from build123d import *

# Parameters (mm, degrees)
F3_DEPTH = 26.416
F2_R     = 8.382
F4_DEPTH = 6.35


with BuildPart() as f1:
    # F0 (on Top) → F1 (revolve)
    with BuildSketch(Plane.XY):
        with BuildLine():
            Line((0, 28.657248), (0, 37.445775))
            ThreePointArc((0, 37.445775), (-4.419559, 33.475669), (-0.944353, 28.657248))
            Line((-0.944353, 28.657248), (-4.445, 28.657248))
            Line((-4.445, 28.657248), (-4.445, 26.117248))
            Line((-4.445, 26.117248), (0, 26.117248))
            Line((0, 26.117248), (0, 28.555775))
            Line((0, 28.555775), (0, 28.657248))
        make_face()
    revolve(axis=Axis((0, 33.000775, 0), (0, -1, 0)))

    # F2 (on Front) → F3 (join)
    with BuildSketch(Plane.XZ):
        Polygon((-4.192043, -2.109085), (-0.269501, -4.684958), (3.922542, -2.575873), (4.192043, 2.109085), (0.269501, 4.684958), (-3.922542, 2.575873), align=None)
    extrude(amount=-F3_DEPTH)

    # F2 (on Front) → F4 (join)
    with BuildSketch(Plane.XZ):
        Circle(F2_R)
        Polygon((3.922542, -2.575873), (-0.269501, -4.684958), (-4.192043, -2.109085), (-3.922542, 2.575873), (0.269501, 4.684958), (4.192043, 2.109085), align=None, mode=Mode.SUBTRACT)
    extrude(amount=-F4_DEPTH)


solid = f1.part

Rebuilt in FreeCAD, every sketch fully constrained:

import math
import FreeCAD as App
import Part
import Sketcher
Q = App.Units.Quantity


def add_polygon(sketch, points):
    """Adds a closed chain of lines whose ends are joined by coincident constraints."""
    first, n = sketch.GeometryCount, len(points)
    for a, b in zip(points, points[1:] + points[:1]):
        sketch.addGeometry(Part.LineSegment(App.Vector(*a, 0), App.Vector(*b, 0)), False)
    for i in range(n):
        sketch.addConstraint(Sketcher.Constraint("Coincident", first + i, 2, first + (i + 1) % n, 1))

doc = App.newDocument("Part")
body = doc.addObject("PartDesign::Body", "Body")

sketch1 = doc.addObject("Sketcher::SketchObject", "Sketch")
body.addObject(sketch1)
sketch1.AttachmentSupport = (doc.XY_Plane, [""])
sketch1.MapMode = "FlatFace"
sketch1.addGeometry([
    Part.ArcOfCircle(Part.Circle(App.Vector(0, 33, 0), App.Vector(0, 0, 1), 4.4), math.radians(90), math.radians(258)),
    Part.LineSegment(App.Vector(-0.9, 28.7, 0), App.Vector(-4.4, 28.7, 0)),
    Part.LineSegment(App.Vector(-4.4, 28.7, 0), App.Vector(-4.4, 26.1, 0)),
    Part.LineSegment(App.Vector(-4.4, 26.1, 0), App.Vector(0, 26.1, 0)),
    Part.LineSegment(App.Vector(0, 26.1, 0), App.Vector(0, 37.4, 0)),
], False)
sketch1.addConstraint([
    Sketcher.Constraint("Coincident", 0, 2, 1, 1),
    Sketcher.Constraint("Coincident", 1, 2, 2, 1),
    Sketcher.Constraint("Coincident", 2, 2, 3, 1),
    Sketcher.Constraint("Coincident", 3, 2, 4, 1),
    Sketcher.Constraint("Coincident", 4, 2, 0, 1),
    Sketcher.Constraint("Horizontal", 1),
    Sketcher.Constraint("Vertical", 2),
    Sketcher.Constraint("Horizontal", 3),
    Sketcher.Constraint("Vertical", 4),
    Sketcher.Constraint("PointOnObject", 0, 3, -2),
    Sketcher.Constraint("PointOnObject", 3, 2, -2),
    Sketcher.Constraint("DistanceY", 2, 2, 2, 1, Q("0.1 in")),
    Sketcher.Constraint("Radius", 0, Q("0.175 in")),
    Sketcher.Constraint("DistanceX", 3, 1, 3, 2, Q("0.175 in")),
    Sketcher.Constraint("DistanceX", 1, 2, 1, 1, Q("3.500647 mm")),
    Sketcher.Constraint("DistanceY", -1, 1, 0, 2, Q("28.657248 mm")),
])
revolution = doc.addObject("PartDesign::Revolution", "Revolution")
body.addObject(revolution)
revolution.Profile = sketch1
revolution.ReferenceAxis = (sketch1, ["V_Axis"])
revolution.Angle = 360

sketch2 = doc.addObject("Sketcher::SketchObject", "Sketch001")
body.addObject(sketch2)
sketch2.AttachmentSupport = (doc.XZ_Plane, [""])
sketch2.MapMode = "FlatFace"
add_polygon(sketch2, [(-4.2, -2.1), (-0.3, -4.7), (3.9, -2.6), (4.2, 2.1), (0.3, 4.7), (-3.9, 2.6)])
sketch2.addConstraint([
    Sketcher.Constraint("Symmetric", 0, 2, 3, 2, -1, 1),
    Sketcher.Constraint("Symmetric", 1, 2, 4, 2, -1, 1),
    Sketcher.Constraint("Symmetric", 2, 2, 5, 2, -1, 1),
    Sketcher.Constraint("Equal", 0, 1),
    Sketcher.Constraint("Equal", 1, 2),
    Sketcher.Constraint("DistanceX", 0, 2, -1, 1, Q("0.269501 mm")),
    Sketcher.Constraint("DistanceX", 1, 2, 2, 2, Q("0.269501 mm")),
    Sketcher.Constraint("DistanceX", -1, 1, 1, 2, Q("3.922542 mm")),
    Sketcher.Constraint("DistanceY", 1, 2, 3, 2, Q("7.260831 mm")),
])
pad1 = doc.addObject("PartDesign::Pad", "Pad")
body.addObject(pad1)
pad1.Profile = sketch2
pad1.Length = Q("1.04 in")
pad1.Reversed = True

sketch3 = doc.addObject("Sketcher::SketchObject", "Sketch002")
body.addObject(sketch3)
sketch3.AttachmentSupport = (doc.XZ_Plane, [""])
sketch3.MapMode = "FlatFace"
sketch3.addGeometry(Part.Circle(App.Vector(0, 0, 0), App.Vector(0, 0, 1), 8.4), False)
add_polygon(sketch3, [(4.2, 2.1), (3.9, -2.6), (-0.3, -4.7), (-4.2, -2.1), (-3.9, 2.6), (0.3, 4.7)])
sketch3.addConstraint([
    Sketcher.Constraint("Coincident", 0, 3, -1, 1),
    Sketcher.Constraint("Symmetric", 1, 2, 4, 2, -1, 1),
    Sketcher.Constraint("Symmetric", 2, 2, 5, 2, -1, 1),
    Sketcher.Constraint("Symmetric", 3, 2, 6, 2, -1, 1),
    Sketcher.Constraint("Equal", 1, 2),
    Sketcher.Constraint("Equal", 2, 3),
    Sketcher.Constraint("Diameter", 0, Q("0.66 in")),
    Sketcher.Constraint("DistanceX", 2, 2, -1, 1, Q("0.269501 mm")),
    Sketcher.Constraint("DistanceX", 3, 2, 4, 2, Q("0.269501 mm")),
    Sketcher.Constraint("DistanceX", -1, 1, 1, 2, Q("3.922542 mm")),
    Sketcher.Constraint("DistanceY", 1, 2, 3, 2, Q("0.466788 mm")),
])
pad2 = doc.addObject("PartDesign::Pad", "Pad001")
body.addObject(pad2)
pad2.Profile = sketch3
pad2.Length = Q("0.25 in")
pad2.Reversed = True

doc.recompute()
